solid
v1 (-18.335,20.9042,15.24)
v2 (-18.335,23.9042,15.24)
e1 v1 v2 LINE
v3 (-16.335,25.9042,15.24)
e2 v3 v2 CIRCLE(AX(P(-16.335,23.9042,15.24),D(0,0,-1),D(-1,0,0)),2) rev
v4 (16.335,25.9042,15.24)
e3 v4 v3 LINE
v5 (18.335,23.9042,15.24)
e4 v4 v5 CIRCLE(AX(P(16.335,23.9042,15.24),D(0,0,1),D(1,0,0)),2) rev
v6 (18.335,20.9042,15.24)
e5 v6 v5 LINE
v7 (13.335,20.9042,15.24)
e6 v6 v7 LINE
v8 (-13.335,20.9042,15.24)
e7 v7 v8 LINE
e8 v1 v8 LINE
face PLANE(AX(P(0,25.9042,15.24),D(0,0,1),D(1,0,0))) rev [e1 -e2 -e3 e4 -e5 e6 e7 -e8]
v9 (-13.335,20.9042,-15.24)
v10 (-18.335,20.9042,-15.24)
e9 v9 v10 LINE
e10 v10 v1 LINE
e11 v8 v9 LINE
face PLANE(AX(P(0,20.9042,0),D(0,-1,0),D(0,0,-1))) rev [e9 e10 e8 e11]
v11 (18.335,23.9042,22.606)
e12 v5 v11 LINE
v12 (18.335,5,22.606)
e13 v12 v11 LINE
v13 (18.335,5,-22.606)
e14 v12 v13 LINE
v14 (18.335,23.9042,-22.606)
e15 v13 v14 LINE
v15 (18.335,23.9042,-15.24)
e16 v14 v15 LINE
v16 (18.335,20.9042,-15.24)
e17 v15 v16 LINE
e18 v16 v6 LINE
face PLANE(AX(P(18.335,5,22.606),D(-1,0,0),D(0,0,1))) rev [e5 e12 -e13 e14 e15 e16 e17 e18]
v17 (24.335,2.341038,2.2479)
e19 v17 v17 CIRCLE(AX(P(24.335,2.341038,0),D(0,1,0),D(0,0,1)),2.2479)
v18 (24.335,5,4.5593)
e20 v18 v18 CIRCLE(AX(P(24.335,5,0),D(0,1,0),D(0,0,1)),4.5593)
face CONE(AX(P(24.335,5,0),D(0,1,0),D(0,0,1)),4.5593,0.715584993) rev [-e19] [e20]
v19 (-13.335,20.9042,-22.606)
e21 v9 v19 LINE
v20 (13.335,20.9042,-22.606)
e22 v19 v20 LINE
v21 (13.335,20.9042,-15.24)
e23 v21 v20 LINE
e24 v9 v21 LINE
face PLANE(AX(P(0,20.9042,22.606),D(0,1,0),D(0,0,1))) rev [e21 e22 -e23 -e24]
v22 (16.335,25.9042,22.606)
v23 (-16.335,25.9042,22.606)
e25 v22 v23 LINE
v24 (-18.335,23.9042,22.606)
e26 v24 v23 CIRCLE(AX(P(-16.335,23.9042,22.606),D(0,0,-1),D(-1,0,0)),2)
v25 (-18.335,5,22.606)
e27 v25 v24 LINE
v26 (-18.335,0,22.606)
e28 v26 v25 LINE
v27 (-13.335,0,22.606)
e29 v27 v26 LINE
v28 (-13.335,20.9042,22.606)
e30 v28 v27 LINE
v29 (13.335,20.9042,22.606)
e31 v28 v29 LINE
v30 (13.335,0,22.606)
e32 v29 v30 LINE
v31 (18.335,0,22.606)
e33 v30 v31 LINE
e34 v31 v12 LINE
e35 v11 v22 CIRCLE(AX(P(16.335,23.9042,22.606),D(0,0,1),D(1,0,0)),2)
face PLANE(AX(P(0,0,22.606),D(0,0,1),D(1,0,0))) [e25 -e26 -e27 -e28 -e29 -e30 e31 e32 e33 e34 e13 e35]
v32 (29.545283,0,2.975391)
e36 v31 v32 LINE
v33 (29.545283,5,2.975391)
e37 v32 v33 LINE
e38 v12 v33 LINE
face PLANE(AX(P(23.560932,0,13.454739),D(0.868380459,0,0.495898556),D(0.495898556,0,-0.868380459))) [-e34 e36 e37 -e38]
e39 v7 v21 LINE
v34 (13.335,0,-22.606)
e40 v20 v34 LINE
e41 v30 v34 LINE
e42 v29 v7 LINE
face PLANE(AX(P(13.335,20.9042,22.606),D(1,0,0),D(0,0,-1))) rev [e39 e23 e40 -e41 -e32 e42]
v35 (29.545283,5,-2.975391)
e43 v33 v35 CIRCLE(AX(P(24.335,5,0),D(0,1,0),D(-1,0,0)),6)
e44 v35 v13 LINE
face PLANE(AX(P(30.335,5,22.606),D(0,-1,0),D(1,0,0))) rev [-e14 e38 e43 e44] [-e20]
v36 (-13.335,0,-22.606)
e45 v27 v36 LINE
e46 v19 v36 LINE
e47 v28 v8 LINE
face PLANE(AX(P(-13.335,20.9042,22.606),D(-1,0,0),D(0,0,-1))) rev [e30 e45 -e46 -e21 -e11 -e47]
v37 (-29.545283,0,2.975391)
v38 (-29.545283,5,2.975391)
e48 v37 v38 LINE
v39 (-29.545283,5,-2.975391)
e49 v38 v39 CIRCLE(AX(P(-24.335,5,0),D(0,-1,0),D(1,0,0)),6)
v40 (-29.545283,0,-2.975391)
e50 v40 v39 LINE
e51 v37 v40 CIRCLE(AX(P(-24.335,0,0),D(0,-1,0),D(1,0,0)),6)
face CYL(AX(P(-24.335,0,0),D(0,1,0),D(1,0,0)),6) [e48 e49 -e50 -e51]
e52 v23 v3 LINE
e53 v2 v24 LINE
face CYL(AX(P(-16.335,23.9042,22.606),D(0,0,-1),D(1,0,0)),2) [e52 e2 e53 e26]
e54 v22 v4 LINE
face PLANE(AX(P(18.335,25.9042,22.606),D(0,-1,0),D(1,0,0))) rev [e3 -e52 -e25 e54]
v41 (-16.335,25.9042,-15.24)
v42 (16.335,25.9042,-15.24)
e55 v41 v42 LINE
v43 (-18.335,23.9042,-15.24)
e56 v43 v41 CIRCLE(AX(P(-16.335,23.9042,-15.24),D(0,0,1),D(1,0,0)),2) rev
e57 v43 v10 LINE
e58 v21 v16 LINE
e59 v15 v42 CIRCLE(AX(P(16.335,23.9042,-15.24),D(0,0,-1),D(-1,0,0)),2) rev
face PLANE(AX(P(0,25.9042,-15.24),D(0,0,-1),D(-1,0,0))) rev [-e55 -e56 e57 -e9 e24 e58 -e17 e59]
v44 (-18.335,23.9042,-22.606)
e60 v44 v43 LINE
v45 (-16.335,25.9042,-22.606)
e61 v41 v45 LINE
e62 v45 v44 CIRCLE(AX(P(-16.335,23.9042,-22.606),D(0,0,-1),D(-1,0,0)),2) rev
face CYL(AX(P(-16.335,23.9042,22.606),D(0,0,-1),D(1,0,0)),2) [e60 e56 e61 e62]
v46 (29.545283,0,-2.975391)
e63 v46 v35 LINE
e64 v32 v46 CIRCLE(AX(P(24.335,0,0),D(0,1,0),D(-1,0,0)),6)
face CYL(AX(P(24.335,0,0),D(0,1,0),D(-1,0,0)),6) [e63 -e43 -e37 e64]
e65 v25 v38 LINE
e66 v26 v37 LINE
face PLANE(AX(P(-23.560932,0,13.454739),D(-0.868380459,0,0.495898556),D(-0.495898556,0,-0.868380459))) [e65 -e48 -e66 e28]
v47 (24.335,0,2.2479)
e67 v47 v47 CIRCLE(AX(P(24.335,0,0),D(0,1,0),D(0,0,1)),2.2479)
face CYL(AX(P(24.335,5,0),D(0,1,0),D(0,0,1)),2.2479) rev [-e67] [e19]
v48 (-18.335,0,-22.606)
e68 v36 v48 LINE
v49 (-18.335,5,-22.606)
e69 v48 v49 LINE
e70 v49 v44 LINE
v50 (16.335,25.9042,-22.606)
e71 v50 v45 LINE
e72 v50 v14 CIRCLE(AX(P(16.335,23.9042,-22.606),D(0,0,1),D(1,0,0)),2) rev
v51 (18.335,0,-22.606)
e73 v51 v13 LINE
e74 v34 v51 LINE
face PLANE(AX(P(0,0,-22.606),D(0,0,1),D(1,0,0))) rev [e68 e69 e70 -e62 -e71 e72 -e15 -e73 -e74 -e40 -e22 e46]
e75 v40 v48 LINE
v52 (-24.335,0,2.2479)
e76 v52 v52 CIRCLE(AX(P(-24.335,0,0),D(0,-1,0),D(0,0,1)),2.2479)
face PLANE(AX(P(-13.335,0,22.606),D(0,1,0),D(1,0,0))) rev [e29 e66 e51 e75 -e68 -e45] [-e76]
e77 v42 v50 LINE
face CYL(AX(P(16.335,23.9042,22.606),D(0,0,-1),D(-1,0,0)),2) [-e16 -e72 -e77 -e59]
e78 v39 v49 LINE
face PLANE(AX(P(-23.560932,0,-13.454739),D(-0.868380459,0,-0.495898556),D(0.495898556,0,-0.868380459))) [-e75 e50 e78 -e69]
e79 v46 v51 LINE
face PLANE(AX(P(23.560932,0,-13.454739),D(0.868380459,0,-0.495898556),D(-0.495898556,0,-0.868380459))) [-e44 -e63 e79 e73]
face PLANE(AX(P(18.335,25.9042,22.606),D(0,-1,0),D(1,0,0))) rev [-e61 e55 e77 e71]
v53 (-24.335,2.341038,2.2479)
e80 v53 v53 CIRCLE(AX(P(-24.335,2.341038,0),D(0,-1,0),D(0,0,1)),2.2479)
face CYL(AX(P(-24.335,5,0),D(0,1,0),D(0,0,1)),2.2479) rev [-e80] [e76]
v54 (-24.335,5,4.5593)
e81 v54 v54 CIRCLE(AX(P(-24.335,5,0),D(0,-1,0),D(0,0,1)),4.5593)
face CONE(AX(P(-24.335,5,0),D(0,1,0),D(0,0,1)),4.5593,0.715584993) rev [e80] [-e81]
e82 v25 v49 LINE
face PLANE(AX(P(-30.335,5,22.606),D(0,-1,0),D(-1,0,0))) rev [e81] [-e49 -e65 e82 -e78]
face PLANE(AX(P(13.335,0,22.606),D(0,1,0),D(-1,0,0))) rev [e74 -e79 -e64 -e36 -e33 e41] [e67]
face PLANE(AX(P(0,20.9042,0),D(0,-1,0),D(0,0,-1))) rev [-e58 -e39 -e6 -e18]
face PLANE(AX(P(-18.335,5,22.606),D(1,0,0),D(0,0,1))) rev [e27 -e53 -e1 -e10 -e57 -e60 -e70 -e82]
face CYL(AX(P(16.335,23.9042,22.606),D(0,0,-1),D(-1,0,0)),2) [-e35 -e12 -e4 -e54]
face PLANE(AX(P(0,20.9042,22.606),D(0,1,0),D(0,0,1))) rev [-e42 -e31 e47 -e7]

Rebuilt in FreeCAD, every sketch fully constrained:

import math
import FreeCAD as App
import Part
import Sketcher

V = App.Vector
Q = App.Units.Quantity


def edges_at(feature, points):
    """Names of the edges that pass closest to the given points."""
    edges = feature.Shape.Edges
    near = lambda p: min(range(len(edges)), key=lambda i: edges[i].distToShape(Part.Vertex(*p))[0])
    return sorted({f"Edge{near(p) + 1}" for p in points})


def add_polygon(sketch, points):
    """Adds a closed chain of lines whose ends are joined by coincident constraints."""
    first, n = sketch.GeometryCount, len(points)
    for a, b in zip(points, points[1:] + points[:1]):
        sketch.addGeometry(Part.LineSegment(App.Vector(*a, 0), App.Vector(*b, 0)), False)
    for i in range(n):
        sketch.addConstraint(Sketcher.Constraint("Coincident", first + i, 2, first + (i + 1) % n, 1))

doc = App.newDocument("Part")
params = doc.addObject("Spreadsheet::Sheet", "Params")
for row, (alias, value) in enumerate([
    ("sketch1_width", "17 mm"),
    ("sketch1_width2", "12 mm"),
    ("sketch1_height", "5 mm"),
    ("pad1_length", "45.212 mm"),
    ("sketch2_height", "30.48 mm"),
    ("sketch3_width", "5 mm"),
    ("groove_angle", "360 deg"),
    ("sketch4_radius", "6 mm"),
    ("sketch4_width", "12 mm"),
    ("fillet_radius", "2 mm"),
], start=1):
    params.set(f"A{row}", alias)
    params.set(f"B{row}", "=" + value)
    params.setAlias(f"B{row}", alias)

body = doc.addObject("PartDesign::Body", "Body")

# Sketch on XY plane
sketch1 = doc.addObject("Sketcher::SketchObject", "Sketch")
body.addObject(sketch1)
sketch1.AttachmentSupport = (doc.XY_Plane, [""])
sketch1.MapMode = "FlatFace"
add_polygon(sketch1, [(0, 20.9042), (13.335, 20.9042), (13.335, 0), (30.335, 0), (30.335, 5), (18.335, 5), (18.335, 25.9042), (0, 25.9042)])  # lines 0-7
sketch1.addConstraint(Sketcher.Constraint("Horizontal", 0))
sketch1.addConstraint(Sketcher.Constraint("Vertical", 1))
sketch1.addConstraint(Sketcher.Constraint("Horizontal", 2))
sketch1.addConstraint(Sketcher.Constraint("Vertical", 3))
sketch1.addConstraint(Sketcher.Constraint("Horizontal", 4))
sketch1.addConstraint(Sketcher.Constraint("Vertical", 5))
sketch1.addConstraint(Sketcher.Constraint("Horizontal", 6))
sketch1.addConstraint(Sketcher.Constraint("Vertical", 7))
sketch1.addConstraint(Sketcher.Constraint("PointOnObject", 1, 2, -1))
sketch1.addConstraint(Sketcher.Constraint("PointOnObject", 6, 2, -2))
sketch1.addConstraint(Sketcher.Constraint("Equal", 1, 5))
sketch1.addConstraint(Sketcher.Constraint("DistanceX", 2, 1, 2, 2, 17.0))
sketch1.addConstraint(Sketcher.Constraint("DistanceX", 4, 2, 4, 1, 12.0))
sketch1.addConstraint(Sketcher.Constraint("DistanceY", 3, 1, 3, 2, 5.0))
sketch1.addConstraint(Sketcher.Constraint("DistanceX", 0, 1, 0, 2, 13.335))
sketch1.addConstraint(Sketcher.Constraint("DistanceY", 1, 2, 1, 1, 20.9042))
sketch1.setExpression("Constraints[19]", "Params.sketch1_width")
sketch1.setExpression("Constraints[20]", "Params.sketch1_width2")
sketch1.setExpression("Constraints[21]", "Params.sketch1_height")
pad1 = doc.addObject("PartDesign::Pad", "Pad")
body.addObject(pad1)
pad1.Profile = sketch1
pad1.setExpression("Length", "Params.pad1_length")
pad1.Midplane = True

# Sketch on XZ plane
sketch2 = doc.addObject("Sketcher::SketchObject", "Sketch001")
body.addObject(sketch2)
sketch2.AttachmentSupport = (doc.XZ_Plane, [""])
sketch2.MapMode = "FlatFace"
sketch2.AttachmentOffset = App.Placement(V(0, 0, -20.9042), App.Rotation())
add_polygon(sketch2, [(0, 15.24), (0, -15.24), (32.636559, -15.24), (32.636559, 15.24)])  # lines 0-3
sketch2.addConstraint(Sketcher.Constraint("Vertical", 0))
sketch2.addConstraint(Sketcher.Constraint("Horizontal", 1))
sketch2.addConstraint(Sketcher.Constraint("Vertical", 2))
sketch2.addConstraint(Sketcher.Constraint("Horizontal", 3))
sketch2.addConstraint(Sketcher.Constraint("Symmetric", 0, 2, 3, 2, -1, 1))
sketch2.addConstraint(Sketcher.Constraint("DistanceY", 0, 2, 0, 1, 30.48))
sketch2.addConstraint(Sketcher.Constraint("DistanceX", 1, 1, 1, 2, 32.636559))
sketch2.setExpression("Constraints[9]", "Params.sketch2_height")
pocket1 = doc.addObject("PartDesign::Pocket", "Pocket")
body.addObject(pocket1)
pocket1.Profile = sketch2
pocket1.Type = "ThroughAll"

# Sketch on YZ plane
sketch3 = doc.addObject("Sketcher::SketchObject", "Sketch002")
body.addObject(sketch3)
sketch3.AttachmentSupport = (doc.YZ_Plane, [""])
sketch3.MapMode = "FlatFace"
sketch3.AttachmentOffset = App.Placement(V(0, 0, 24.335), App.Rotation())
add_polygon(sketch3, [(0, 0), (5, 0), (5, 4.5593), (2.341038, 2.2479), (0, 2.2479)])  # lines 0-4
sketch3.addConstraint(Sketcher.Constraint("Horizontal", 0))
sketch3.addConstraint(Sketcher.Constraint("Vertical", 1))
sketch3.addConstraint(Sketcher.Constraint("Horizontal", 3))
sketch3.addConstraint(Sketcher.Constraint("Vertical", 4))
sketch3.addConstraint(Sketcher.Constraint("Coincident", 4, 2, -1, 1))
sketch3.addConstraint(Sketcher.Constraint("DistanceX", 0, 1, 0, 2, 5.0))
sketch3.addConstraint(Sketcher.Constraint("Angle", 2, Q("-139 deg")))
sketch3.addConstraint(Sketcher.Constraint("DistanceY", 1, 1, 1, 2, 4.5593))
sketch3.addConstraint(Sketcher.Constraint("DistanceY", 4, 2, 4, 1, 2.2479))
sketch3.setExpression("Constraints[10]", "Params.sketch3_width")
groove = doc.addObject("PartDesign::Groove", "Groove")
body.addObject(groove)
groove.Profile = sketch3
groove.ReferenceAxis = (sketch3, ["H_Axis"])
groove.setExpression("Angle", "Params.groove_angle")

# Sketch on XZ plane
sketch4 = doc.addObject("Sketcher::SketchObject", "Sketch003")
body.addObject(sketch4)
sketch4.AttachmentSupport = (doc.XZ_Plane, [""])
sketch4.MapMode = "FlatFace"
sketch4.AttachmentOffset = App.Placement(V(0, 0, -5), App.Rotation())
sketch4.addGeometry(Part.LineSegment(V(30.335, -22.606, 0), V(18.335, -22.606, 0)), False)
sketch4.addGeometry(Part.LineSegment(V(18.335, -22.606, 0), V(29.545283, -2.975391, 0)), False)
sketch4.addGeometry(Part.ArcOfCircle(Part.Circle(V(24.335, 0, 0), V(0, 0, 1), 6), math.radians(-29.72902), math.radians(0)), False)
sketch4.addGeometry(Part.LineSegment(V(30.335, 0, 0), V(30.335, -22.606, 0)), False)
sketch4.addGeometry(Part.LineSegment(V(30.335, 22.606, 0), V(30.335, 0, 0)), False)
sketch4.addGeometry(Part.ArcOfCircle(Part.Circle(V(24.335, 0, 0), V(0, 0, 1), 6), math.radians(0), math.radians(29.72902)), False)
sketch4.addGeometry(Part.LineSegment(V(29.545283, 2.975391, 0), V(18.335, 22.606, 0)), False)
sketch4.addGeometry(Part.LineSegment(V(18.335, 22.606, 0), V(30.335, 22.606, 0)), False)
sketch4.addConstraint(Sketcher.Constraint("Coincident", 0, 2, 1, 1))
sketch4.addConstraint(Sketcher.Constraint("Tangent", 1, 2, 2, 1))
sketch4.addConstraint(Sketcher.Constraint("Tangent", 2, 2, 3, 1))
sketch4.addConstraint(Sketcher.Constraint("Coincident", 3, 2, 0, 1))
sketch4.addConstraint(Sketcher.Constraint("Tangent", 4, 2, 5, 1))
sketch4.addConstraint(Sketcher.Constraint("Tangent", 5, 2, 6, 1))
sketch4.addConstraint(Sketcher.Constraint("Coincident", 6, 2, 7, 1))
sketch4.addConstraint(Sketcher.Constraint("Coincident", 7, 2, 4, 1))
sketch4.addConstraint(Sketcher.Constraint("Horizontal", 0))
sketch4.addConstraint(Sketcher.Constraint("Vertical", 3))
sketch4.addConstraint(Sketcher.Constraint("Vertical", 4))
sketch4.addConstraint(Sketcher.Constraint("Horizontal", 7))
sketch4.addConstraint(Sketcher.Constraint("Coincident", 5, 3, 2, 3))
sketch4.addConstraint(Sketcher.Constraint("Equal", 2, 5))
sketch4.addConstraint(Sketcher.Constraint("Symmetric", 1, 2, 5, 2, -1))
sketch4.addConstraint(Sketcher.Constraint("Vertical", 0, 2, 6, 2))
sketch4.addConstraint(Sketcher.Constraint("Radius", 2, 6.0))
sketch4.addConstraint(Sketcher.Constraint("DistanceX", 0, 2, 0, 1, 12.0))
sketch4.addConstraint(Sketcher.Constraint("DistanceY", 3, 2, 3, 1, 22.606))
sketch4.addConstraint(Sketcher.Constraint("DistanceX", -1, 1, 2, 3, 24.335))
sketch4.setExpression("Constraints[16]", "Params.sketch4_radius")
sketch4.setExpression("Constraints[17]", "Params.sketch4_width")
pocket2 = doc.addObject("PartDesign::Pocket", "Pocket001")
body.addObject(pocket2)
pocket2.Profile = sketch4
pocket2.Type = "ThroughAll"
pocket2.Reversed = True
doc.recompute()

fillet = doc.addObject("PartDesign::Fillet", "Fillet")
body.addObject(fillet)
fillet.Base = (pocket2, edges_at(pocket2, [(18.335, 25.904, 18.923), (18.335, 25.904, -18.923)]))
fillet.setExpression("Radius", "Params.fillet_radius")
body2 = doc.addObject("PartDesign::Body", "Body001")
doc.recompute()

body2.BaseFeature = body
doc.recompute()

mirroring = doc.addObject("Part::Mirroring", "Mirroring")
mirroring.Source = body
mirroring.Base = V(0, 0, 0)
mirroring.Normal = V(1, 0, 0)
body3 = doc.addObject("PartDesign::Body", "Body002")
body3.BaseFeature = mirroring
boolean = doc.addObject("PartDesign::Boolean", "Boolean")
body2.addObject(boolean)
boolean.Type = "Fuse"
boolean.addObjects([body3])
doc.recompute()
mirroring.Visibility = False

doc.recompute()
